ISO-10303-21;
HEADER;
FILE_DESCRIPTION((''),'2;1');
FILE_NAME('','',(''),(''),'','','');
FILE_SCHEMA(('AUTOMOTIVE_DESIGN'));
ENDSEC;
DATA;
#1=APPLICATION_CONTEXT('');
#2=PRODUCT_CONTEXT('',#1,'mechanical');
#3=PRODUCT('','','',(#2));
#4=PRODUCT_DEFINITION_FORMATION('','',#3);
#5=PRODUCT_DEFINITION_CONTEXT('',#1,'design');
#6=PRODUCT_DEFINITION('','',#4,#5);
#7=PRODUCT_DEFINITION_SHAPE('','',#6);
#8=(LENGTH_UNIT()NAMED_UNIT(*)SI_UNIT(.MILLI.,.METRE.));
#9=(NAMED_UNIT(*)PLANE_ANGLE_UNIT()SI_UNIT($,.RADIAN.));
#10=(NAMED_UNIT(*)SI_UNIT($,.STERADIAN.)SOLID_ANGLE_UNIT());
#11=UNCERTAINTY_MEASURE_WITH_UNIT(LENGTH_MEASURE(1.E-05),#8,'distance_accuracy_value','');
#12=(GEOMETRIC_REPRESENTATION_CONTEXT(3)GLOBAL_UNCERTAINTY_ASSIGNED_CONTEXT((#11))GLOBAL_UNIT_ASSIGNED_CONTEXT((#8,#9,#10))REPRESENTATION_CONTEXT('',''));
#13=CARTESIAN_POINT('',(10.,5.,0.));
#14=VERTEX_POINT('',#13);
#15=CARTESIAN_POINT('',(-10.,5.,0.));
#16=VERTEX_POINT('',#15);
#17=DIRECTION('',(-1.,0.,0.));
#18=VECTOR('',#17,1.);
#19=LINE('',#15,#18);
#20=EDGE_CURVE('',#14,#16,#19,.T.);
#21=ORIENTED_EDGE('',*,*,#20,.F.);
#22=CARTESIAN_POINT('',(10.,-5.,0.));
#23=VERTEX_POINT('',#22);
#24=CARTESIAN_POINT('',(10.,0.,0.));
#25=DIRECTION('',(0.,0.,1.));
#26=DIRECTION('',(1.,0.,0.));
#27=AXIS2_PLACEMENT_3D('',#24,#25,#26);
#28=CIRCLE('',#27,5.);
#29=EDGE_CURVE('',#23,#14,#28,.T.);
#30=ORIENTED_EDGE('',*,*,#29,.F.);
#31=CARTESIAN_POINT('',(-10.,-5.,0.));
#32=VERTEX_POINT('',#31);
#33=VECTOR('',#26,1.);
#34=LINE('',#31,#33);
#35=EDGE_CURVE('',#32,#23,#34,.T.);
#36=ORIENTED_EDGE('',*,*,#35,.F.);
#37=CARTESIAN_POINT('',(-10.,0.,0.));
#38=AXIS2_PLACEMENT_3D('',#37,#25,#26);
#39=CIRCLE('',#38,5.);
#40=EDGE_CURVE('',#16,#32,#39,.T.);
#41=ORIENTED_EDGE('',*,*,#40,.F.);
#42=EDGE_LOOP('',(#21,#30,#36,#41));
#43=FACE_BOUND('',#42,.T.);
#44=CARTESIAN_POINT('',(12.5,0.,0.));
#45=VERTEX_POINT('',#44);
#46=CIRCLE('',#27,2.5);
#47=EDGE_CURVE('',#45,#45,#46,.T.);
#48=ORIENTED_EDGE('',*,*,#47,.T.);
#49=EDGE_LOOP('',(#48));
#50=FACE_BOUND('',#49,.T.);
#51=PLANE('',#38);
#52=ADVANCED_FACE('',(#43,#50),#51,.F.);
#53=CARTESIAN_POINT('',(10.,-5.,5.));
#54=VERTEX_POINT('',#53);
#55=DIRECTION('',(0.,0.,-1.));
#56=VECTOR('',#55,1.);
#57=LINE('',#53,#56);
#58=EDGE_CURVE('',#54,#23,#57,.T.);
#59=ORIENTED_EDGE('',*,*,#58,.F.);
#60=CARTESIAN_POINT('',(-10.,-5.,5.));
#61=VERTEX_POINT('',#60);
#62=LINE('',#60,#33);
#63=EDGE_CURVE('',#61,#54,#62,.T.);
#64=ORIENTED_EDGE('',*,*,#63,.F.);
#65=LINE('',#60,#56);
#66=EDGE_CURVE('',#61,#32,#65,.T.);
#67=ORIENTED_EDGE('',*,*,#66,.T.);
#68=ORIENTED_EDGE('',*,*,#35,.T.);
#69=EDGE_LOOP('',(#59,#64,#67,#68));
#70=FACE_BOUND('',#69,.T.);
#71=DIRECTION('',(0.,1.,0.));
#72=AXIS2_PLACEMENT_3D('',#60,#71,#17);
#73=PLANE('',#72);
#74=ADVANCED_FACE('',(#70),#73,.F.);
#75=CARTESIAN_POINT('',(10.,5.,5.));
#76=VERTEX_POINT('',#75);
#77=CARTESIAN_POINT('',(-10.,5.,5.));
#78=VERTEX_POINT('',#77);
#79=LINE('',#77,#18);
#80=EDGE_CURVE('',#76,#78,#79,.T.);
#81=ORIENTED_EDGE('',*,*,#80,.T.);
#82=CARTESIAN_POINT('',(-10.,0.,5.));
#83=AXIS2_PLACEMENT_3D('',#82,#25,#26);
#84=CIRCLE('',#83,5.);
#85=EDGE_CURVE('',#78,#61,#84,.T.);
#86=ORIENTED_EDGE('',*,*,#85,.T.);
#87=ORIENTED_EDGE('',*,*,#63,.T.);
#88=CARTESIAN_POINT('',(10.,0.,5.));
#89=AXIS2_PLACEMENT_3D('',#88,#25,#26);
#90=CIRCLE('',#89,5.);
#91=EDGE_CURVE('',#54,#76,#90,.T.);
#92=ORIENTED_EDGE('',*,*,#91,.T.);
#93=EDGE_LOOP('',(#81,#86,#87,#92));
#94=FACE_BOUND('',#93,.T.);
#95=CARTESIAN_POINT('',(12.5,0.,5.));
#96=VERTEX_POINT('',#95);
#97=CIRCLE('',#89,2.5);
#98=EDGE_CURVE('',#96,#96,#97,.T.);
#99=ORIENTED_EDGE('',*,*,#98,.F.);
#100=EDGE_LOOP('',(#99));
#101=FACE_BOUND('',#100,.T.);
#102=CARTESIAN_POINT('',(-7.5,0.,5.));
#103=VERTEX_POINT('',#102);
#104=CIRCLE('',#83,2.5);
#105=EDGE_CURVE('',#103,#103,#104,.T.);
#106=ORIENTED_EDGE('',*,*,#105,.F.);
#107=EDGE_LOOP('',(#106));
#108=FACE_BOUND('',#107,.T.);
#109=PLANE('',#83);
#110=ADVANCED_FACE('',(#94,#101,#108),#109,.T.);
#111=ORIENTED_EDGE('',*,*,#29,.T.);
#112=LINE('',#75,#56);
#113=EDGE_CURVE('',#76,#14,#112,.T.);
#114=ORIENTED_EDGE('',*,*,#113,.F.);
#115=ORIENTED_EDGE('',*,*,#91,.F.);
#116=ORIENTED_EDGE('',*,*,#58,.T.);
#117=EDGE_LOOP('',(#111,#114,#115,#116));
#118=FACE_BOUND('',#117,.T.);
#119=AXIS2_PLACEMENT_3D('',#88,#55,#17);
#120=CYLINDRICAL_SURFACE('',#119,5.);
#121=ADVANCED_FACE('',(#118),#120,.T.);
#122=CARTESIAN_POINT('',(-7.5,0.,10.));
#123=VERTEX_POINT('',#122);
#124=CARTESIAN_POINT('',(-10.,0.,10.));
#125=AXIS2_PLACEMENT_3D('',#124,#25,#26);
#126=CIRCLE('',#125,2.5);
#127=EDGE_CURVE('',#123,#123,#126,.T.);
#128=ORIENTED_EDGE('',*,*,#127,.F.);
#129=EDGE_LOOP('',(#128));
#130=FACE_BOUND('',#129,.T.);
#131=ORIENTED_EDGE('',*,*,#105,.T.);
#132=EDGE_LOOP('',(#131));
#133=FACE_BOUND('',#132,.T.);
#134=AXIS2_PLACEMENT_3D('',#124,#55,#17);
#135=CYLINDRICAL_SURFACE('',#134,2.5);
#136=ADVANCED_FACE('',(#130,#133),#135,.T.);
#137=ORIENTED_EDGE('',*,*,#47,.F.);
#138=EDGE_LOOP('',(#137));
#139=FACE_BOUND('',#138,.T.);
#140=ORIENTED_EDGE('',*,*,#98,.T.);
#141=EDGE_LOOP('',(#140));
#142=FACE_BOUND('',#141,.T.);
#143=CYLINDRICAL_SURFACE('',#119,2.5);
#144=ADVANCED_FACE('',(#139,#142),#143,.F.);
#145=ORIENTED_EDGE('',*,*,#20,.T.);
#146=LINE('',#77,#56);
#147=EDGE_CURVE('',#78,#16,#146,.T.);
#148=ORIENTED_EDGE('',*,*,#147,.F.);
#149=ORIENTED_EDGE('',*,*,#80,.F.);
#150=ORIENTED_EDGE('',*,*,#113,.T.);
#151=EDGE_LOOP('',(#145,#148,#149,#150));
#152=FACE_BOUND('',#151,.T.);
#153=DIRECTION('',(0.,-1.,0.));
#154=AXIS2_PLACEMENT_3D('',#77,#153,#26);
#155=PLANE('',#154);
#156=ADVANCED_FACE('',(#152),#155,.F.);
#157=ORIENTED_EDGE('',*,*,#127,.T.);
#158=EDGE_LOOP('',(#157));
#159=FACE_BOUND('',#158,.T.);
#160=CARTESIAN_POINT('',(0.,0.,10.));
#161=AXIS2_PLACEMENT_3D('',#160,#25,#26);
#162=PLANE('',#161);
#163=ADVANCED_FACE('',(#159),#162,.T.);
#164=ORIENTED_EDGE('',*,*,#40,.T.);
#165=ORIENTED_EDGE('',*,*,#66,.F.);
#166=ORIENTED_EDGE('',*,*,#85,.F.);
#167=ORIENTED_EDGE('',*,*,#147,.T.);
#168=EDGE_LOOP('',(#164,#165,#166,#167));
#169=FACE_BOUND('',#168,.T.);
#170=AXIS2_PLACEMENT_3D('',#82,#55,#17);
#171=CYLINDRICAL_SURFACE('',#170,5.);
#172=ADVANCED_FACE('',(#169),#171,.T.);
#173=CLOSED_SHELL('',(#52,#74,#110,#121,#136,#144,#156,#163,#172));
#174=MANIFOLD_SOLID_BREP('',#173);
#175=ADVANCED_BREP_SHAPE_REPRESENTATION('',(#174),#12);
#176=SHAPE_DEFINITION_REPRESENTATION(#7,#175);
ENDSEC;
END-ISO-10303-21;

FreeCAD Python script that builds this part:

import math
import FreeCAD as App
import Part
import Sketcher
from FreeCAD import Vector

doc = App.newDocument("Part")
params = doc.addObject("Spreadsheet::Sheet", "Params")
for row, (alias, value) in enumerate([
    ("sketch1_diameter", "5 mm"),
    ("sketch1_radius", "5 mm"),
    ("sketch1_width", "20 mm"),
    ("pad1_length", "5 mm"),
    ("sketch2_diameter", "5 mm"),
    ("pad2_length", "10 mm"),
], start=1):
    params.set(f"A{row}", alias)
    params.set(f"B{row}", "=" + value)
    params.setAlias(f"B{row}", alias)

body = doc.addObject("PartDesign::Body", "Body")

# Sketch on XY plane
sketch1 = body.newObject("Sketcher::SketchObject", "Sketch")
sketch1.AttachmentSupport = (doc.getObject("XY_Plane"), [""])
sketch1.MapMode = "FlatFace"
sketch1.addGeometry(Part.LineSegment(Vector(10, 5, 0), Vector(-10, 5, 0)), False)
sketch1.addGeometry(Part.ArcOfCircle(Part.Circle(Vector(-10, 0, 0), Vector(0, 0, 1), 5), math.radians(90), math.radians(270)), False)
sketch1.addGeometry(Part.LineSegment(Vector(-10, -5, 0), Vector(10, -5, 0)), False)
sketch1.addGeometry(Part.ArcOfCircle(Part.Circle(Vector(10, 0, 0), Vector(0, 0, 1), 5), math.radians(-90), math.radians(90)), False)
sketch1.addGeometry(Part.Circle(Vector(10, 0, 0), Vector(0, 0, 1), 2.5), False)
sketch1.addGeometry(Part.Circle(Vector(-10, 0, 0), Vector(0, 0, 1), 2.5), False)
sketch1.addConstraint(Sketcher.Constraint("Tangent", 0, 2, 1, 1))
sketch1.addConstraint(Sketcher.Constraint("Tangent", 1, 2, 2, 1))
sketch1.addConstraint(Sketcher.Constraint("Tangent", 2, 2, 3, 1))
sketch1.addConstraint(Sketcher.Constraint("Tangent", 3, 2, 0, 1))
sketch1.addConstraint(Sketcher.Constraint("Horizontal", 0))
sketch1.addConstraint(Sketcher.Constraint("Horizontal", 2))
sketch1.addConstraint(Sketcher.Constraint("Coincident", 4, 3, 3, 3))
sketch1.addConstraint(Sketcher.Constraint("Coincident", 5, 3, 1, 3))
sketch1.addConstraint(Sketcher.Constraint("Equal", 4, 5))
sketch1.addConstraint(Sketcher.Constraint("Symmetric", 1, 3, 3, 3, -1, 1))
sketch1.addConstraint(Sketcher.Constraint("Diameter", 4, 5.0))
sketch1.addConstraint(Sketcher.Constraint("Radius", 1, 5.0))
sketch1.addConstraint(Sketcher.Constraint("DistanceX", 0, 2, 0, 1, 20.0))
sketch1.setExpression("Constraints[10]", "Params.sketch1_diameter")
sketch1.setExpression("Constraints[11]", "Params.sketch1_radius")
sketch1.setExpression("Constraints[12]", "Params.sketch1_width")
pad1 = body.newObject("PartDesign::Pad", "Pad")
pad1.Profile = sketch1
pad1.setExpression("Length", "Params.pad1_length")

# Sketch on XY plane
sketch2 = body.newObject("Sketcher::SketchObject", "Sketch001")
sketch2.AttachmentSupport = (doc.getObject("XY_Plane"), [""])
sketch2.MapMode = "FlatFace"
sketch2.addGeometry(Part.Circle(Vector(-10, 0, 0), Vector(0, 0, 1), 2.5), False)
sketch2.addConstraint(Sketcher.Constraint("PointOnObject", 0, 3, -1))
sketch2.addConstraint(Sketcher.Constraint("Diameter", 0, 5.0))
sketch2.addConstraint(Sketcher.Constraint("DistanceX", 0, 3, -1, 1, 10.0))
sketch2.setExpression("Constraints[1]", "Params.sketch2_diameter")
pad2 = body.newObject("PartDesign::Pad", "Pad001")
pad2.Profile = sketch2
pad2.setExpression("Length", "Params.pad2_length")

doc.recompute()
